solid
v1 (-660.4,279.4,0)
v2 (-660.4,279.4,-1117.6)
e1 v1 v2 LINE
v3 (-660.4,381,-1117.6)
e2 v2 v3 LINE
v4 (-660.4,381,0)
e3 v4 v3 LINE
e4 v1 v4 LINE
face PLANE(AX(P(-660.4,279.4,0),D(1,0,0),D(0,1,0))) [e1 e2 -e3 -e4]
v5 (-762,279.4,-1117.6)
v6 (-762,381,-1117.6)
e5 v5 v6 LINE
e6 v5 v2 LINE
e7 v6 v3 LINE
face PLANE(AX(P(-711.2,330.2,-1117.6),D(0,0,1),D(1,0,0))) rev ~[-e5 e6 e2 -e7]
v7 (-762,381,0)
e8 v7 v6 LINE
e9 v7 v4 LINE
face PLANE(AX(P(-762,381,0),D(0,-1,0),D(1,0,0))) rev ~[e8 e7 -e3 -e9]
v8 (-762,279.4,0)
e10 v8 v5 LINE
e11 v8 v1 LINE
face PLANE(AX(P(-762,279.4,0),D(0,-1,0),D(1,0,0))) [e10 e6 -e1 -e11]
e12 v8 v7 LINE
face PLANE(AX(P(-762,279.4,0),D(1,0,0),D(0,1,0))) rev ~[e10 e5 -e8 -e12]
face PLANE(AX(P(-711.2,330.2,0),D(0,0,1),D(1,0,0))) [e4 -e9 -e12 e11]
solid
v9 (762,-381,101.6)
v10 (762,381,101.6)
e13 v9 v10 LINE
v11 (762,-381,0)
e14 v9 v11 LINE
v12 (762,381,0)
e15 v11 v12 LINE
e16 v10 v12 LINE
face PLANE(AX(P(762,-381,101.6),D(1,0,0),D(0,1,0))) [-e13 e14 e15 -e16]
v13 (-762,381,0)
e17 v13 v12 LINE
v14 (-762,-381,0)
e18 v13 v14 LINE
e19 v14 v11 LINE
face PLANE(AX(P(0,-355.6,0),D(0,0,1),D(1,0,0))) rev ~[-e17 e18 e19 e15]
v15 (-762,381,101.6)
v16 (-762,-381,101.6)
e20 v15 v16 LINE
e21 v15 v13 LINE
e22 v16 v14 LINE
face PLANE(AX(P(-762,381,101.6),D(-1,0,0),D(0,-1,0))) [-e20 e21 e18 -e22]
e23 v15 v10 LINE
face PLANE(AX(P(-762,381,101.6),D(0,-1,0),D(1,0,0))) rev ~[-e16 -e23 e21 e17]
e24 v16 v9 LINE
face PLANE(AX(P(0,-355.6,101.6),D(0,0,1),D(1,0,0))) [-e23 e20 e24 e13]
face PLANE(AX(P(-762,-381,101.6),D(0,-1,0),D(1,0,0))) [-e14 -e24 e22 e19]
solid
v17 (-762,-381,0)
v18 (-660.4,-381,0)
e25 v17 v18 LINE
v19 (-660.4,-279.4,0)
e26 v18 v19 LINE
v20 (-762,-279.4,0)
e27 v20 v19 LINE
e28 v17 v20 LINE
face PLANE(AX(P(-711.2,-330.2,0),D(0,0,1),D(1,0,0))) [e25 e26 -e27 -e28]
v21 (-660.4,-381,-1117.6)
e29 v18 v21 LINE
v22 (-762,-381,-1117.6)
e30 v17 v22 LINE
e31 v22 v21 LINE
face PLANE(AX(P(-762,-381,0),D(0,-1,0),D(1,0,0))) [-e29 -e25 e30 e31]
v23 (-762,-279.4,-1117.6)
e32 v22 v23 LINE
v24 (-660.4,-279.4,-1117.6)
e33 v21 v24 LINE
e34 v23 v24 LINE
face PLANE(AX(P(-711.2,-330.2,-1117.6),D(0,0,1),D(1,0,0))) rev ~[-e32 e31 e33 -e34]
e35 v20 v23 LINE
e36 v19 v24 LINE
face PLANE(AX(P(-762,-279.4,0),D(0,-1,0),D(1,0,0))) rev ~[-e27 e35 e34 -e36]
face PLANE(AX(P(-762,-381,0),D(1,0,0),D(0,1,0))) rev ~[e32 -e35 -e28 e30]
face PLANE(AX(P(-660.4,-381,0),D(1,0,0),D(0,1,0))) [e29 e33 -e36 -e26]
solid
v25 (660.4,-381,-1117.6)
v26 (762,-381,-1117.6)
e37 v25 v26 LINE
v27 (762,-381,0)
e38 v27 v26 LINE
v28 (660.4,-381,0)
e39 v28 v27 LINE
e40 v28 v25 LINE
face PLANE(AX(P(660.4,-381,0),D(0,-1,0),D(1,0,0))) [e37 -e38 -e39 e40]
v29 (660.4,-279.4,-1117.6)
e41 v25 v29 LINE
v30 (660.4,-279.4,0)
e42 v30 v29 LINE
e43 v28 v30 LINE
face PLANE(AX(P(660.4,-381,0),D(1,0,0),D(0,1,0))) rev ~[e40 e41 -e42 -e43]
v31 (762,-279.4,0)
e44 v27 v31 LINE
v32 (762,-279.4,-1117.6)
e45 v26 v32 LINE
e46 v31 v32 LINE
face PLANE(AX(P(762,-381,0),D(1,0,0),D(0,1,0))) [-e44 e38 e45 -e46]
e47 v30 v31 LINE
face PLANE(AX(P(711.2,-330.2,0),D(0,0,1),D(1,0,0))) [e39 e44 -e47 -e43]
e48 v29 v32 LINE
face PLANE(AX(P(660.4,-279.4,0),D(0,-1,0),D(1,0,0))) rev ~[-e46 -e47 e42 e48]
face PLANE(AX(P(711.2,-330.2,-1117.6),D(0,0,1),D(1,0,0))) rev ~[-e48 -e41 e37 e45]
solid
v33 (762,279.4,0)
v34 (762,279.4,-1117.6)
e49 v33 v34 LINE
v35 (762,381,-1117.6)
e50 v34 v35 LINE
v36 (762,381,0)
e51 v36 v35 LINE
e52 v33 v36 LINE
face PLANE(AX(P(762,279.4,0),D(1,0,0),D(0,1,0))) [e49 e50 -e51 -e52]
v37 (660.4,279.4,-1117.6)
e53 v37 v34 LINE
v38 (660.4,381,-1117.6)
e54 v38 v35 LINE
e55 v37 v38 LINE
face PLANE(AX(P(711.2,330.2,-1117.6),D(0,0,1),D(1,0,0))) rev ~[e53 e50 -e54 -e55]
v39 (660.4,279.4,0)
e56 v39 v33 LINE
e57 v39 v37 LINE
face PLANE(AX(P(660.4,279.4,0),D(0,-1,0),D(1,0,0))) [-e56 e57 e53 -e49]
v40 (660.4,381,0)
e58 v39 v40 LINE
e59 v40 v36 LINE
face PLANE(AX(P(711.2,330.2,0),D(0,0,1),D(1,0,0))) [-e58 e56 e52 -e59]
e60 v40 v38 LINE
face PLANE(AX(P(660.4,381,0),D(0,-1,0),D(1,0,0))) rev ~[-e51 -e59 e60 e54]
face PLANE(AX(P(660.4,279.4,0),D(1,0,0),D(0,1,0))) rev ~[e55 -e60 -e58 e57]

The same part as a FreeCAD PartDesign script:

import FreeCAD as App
import Part
import Sketcher
from FreeCAD import Vector
Q = App.Units.Quantity

doc = App.newDocument("Part")
body = doc.addObject("PartDesign::Body", "Body")

# Sketch on XY plane
sketch1 = body.newObject("Sketcher::SketchObject", "Sketch")
sketch1.AttachmentSupport = (doc.getObject("XY_Plane"), [""])
sketch1.MapMode = "FlatFace"
sketch1.addGeometry(Part.LineSegment(Vector(-762, 381, 0), Vector(-762, 279.4, 0)), False)
sketch1.addGeometry(Part.LineSegment(Vector(-762, 279.4, 0), Vector(-660.4, 279.4, 0)), False)
sketch1.addGeometry(Part.LineSegment(Vector(-660.4, 279.4, 0), Vector(-660.4, 381, 0)), False)
sketch1.addGeometry(Part.LineSegment(Vector(-660.4, 381, 0), Vector(-762, 381, 0)), False)
sketch1.addConstraint(Sketcher.Constraint("Coincident", 0, 2, 1, 1))
sketch1.addConstraint(Sketcher.Constraint("Coincident", 1, 2, 2, 1))
sketch1.addConstraint(Sketcher.Constraint("Coincident", 2, 2, 3, 1))
sketch1.addConstraint(Sketcher.Constraint("Coincident", 3, 2, 0, 1))
sketch1.addConstraint(Sketcher.Constraint("Vertical", 0))
sketch1.addConstraint(Sketcher.Constraint("Horizontal", 1))
sketch1.addConstraint(Sketcher.Constraint("Vertical", 2))
sketch1.addConstraint(Sketcher.Constraint("Horizontal", 3))
sketch1.addConstraint(Sketcher.Constraint("Equal", 3, 0))
sketch1.addConstraint(Sketcher.Constraint("DistanceX", 1, 1, 1, 2, Q("4 in")))
sketch1.addConstraint(Sketcher.Constraint("DistanceX", 0, 2, -1, 1, Q("30 in")))
sketch1.addConstraint(Sketcher.Constraint("DistanceY", -1, 1, 0, 2, Q("11 in")))
pad1 = body.newObject("PartDesign::Pad", "Pad")
pad1.Profile = sketch1
pad1.Length = Q("44 in")
pad1.Reversed = True
body2 = doc.addObject("PartDesign::Body", "Body001")

# Sketch on XY plane
sketch2 = body2.newObject("Sketcher::SketchObject", "Sketch001")
sketch2.AttachmentSupport = (doc.getObject("XY_Plane001"), [""])
sketch2.MapMode = "FlatFace"
sketch2.addGeometry(Part.LineSegment(Vector(660.4, 381, 0), Vector(660.4, 279.4, 0)), False)
sketch2.addGeometry(Part.LineSegment(Vector(660.4, 279.4, 0), Vector(762, 279.4, 0)), False)
sketch2.addGeometry(Part.LineSegment(Vector(762, 279.4, 0), Vector(762, 381, 0)), False)
sketch2.addGeometry(Part.LineSegment(Vector(762, 381, 0), Vector(660.4, 381, 0)), False)
sketch2.addConstraint(Sketcher.Constraint("Coincident", 0, 2, 1, 1))
sketch2.addConstraint(Sketcher.Constraint("Coincident", 1, 2, 2, 1))
sketch2.addConstraint(Sketcher.Constraint("Coincident", 2, 2, 3, 1))
sketch2.addConstraint(Sketcher.Constraint("Coincident", 3, 2, 0, 1))
sketch2.addConstraint(Sketcher.Constraint("Vertical", 0))
sketch2.addConstraint(Sketcher.Constraint("Horizontal", 1))
sketch2.addConstraint(Sketcher.Constraint("Vertical", 2))
sketch2.addConstraint(Sketcher.Constraint("Horizontal", 3))
sketch2.addConstraint(Sketcher.Constraint("Equal", 3, 0))
sketch2.addConstraint(Sketcher.Constraint("DistanceX", 1, 1, 1, 2, Q("4 in")))
sketch2.addConstraint(Sketcher.Constraint("DistanceX", -1, 1, 0, 2, Q("26 in")))
sketch2.addConstraint(Sketcher.Constraint("DistanceY", -1, 1, 0, 2, Q("11 in")))
pad2 = body2.newObject("PartDesign::Pad", "Pad001")
pad2.Profile = sketch2
pad2.Length = Q("44 in")
pad2.Reversed = True
body3 = doc.addObject("PartDesign::Body", "Body002")

# Sketch on XY plane
sketch3 = body3.newObject("Sketcher::SketchObject", "Sketch002")
sketch3.AttachmentSupport = (doc.getObject("XY_Plane002"), [""])
sketch3.MapMode = "FlatFace"
sketch3.addGeometry(Part.LineSegment(Vector(660.4, -279.4, 0), Vector(660.4, -381, 0)), False)
sketch3.addGeometry(Part.LineSegment(Vector(660.4, -381, 0), Vector(762, -381, 0)), False)
sketch3.addGeometry(Part.LineSegment(Vector(762, -381, 0), Vector(762, -279.4, 0)), False)
sketch3.addGeometry(Part.LineSegment(Vector(762, -279.4, 0), Vector(660.4, -279.4, 0)), False)
sketch3.addConstraint(Sketcher.Constraint("Coincident", 0, 2, 1, 1))
sketch3.addConstraint(Sketcher.Constraint("Coincident", 1, 2, 2, 1))
sketch3.addConstraint(Sketcher.Constraint("Coincident", 2, 2, 3, 1))
sketch3.addConstraint(Sketcher.Constraint("Coincident", 3, 2, 0, 1))
sketch3.addConstraint(Sketcher.Constraint("Vertical", 0))
sketch3.addConstraint(Sketcher.Constraint("Horizontal", 1))
sketch3.addConstraint(Sketcher.Constraint("Vertical", 2))
sketch3.addConstraint(Sketcher.Constraint("Horizontal", 3))
sketch3.addConstraint(Sketcher.Constraint("Equal", 3, 0))
sketch3.addConstraint(Sketcher.Constraint("DistanceX", 1, 1, 1, 2, Q("4 in")))
sketch3.addConstraint(Sketcher.Constraint("DistanceX", -1, 1, 0, 2, Q("26 in")))
sketch3.addConstraint(Sketcher.Constraint("DistanceY", 0, 2, -1, 1, Q("15 in")))
pad3 = body3.newObject("PartDesign::Pad", "Pad002")
pad3.Profile = sketch3
pad3.Length = Q("44 in")
pad3.Reversed = True
body4 = doc.addObject("PartDesign::Body", "Body003")

# Sketch on XY plane
sketch4 = body4.newObject("Sketcher::SketchObject", "Sketch003")
sketch4.AttachmentSupport = (doc.getObject("XY_Plane003"), [""])
sketch4.MapMode = "FlatFace"
sketch4.addGeometry(Part.LineSegment(Vector(-762, -279.4, 0), Vector(-762, -381, 0)), False)
sketch4.addGeometry(Part.LineSegment(Vector(-762, -381, 0), Vector(-660.4, -381, 0)), False)
sketch4.addGeometry(Part.LineSegment(Vector(-660.4, -381, 0), Vector(-660.4, -279.4, 0)), False)
sketch4.addGeometry(Part.LineSegment(Vector(-660.4, -279.4, 0), Vector(-762, -279.4, 0)), False)
sketch4.addConstraint(Sketcher.Constraint("Coincident", 0, 2, 1, 1))
sketch4.addConstraint(Sketcher.Constraint("Coincident", 1, 2, 2, 1))
sketch4.addConstraint(Sketcher.Constraint("Coincident", 2, 2, 3, 1))
sketch4.addConstraint(Sketcher.Constraint("Coincident", 3, 2, 0, 1))
sketch4.addConstraint(Sketcher.Constraint("Vertical", 0))
sketch4.addConstraint(Sketcher.Constraint("Horizontal", 1))
sketch4.addConstraint(Sketcher.Constraint("Vertical", 2))
sketch4.addConstraint(Sketcher.Constraint("Horizontal", 3))
sketch4.addConstraint(Sketcher.Constraint("Equal", 3, 0))
sketch4.addConstraint(Sketcher.Constraint("DistanceX", 1, 1, 1, 2, Q("4 in")))
sketch4.addConstraint(Sketcher.Constraint("DistanceX", 0, 2, -1, 1, Q("30 in")))
sketch4.addConstraint(Sketcher.Constraint("DistanceY", 0, 2, -1, 1, Q("15 in")))
pad4 = body4.newObject("PartDesign::Pad", "Pad003")
pad4.Profile = sketch4
pad4.Length = Q("44 in")
pad4.Reversed = True
body5 = doc.addObject("PartDesign::Body", "Body004")

# Sketch on XY plane
sketch5 = body5.newObject("Sketcher::SketchObject", "Sketch004")
sketch5.AttachmentSupport = (doc.getObject("XY_Plane004"), [""])
sketch5.MapMode = "FlatFace"
sketch5.AttachmentOffset = App.Placement(Vector(0, 0, 4 * 25.4), App.Rotation())
sketch5.addGeometry(Part.LineSegment(Vector(-762, -381, 0), Vector(762, -381, 0)), False)
sketch5.addGeometry(Part.LineSegment(Vector(762, -381, 0), Vector(762, 381, 0)), False)
sketch5.addGeometry(Part.LineSegment(Vector(762, 381, 0), Vector(-762, 381, 0)), False)
sketch5.addGeometry(Part.LineSegment(Vector(-762, 381, 0), Vector(-762, -381, 0)), False)
sketch5.addConstraint(Sketcher.Constraint("Coincident", 0, 2, 1, 1))
sketch5.addConstraint(Sketcher.Constraint("Coincident", 1, 2, 2, 1))
sketch5.addConstraint(Sketcher.Constraint("Coincident", 2, 2, 3, 1))
sketch5.addConstraint(Sketcher.Constraint("Coincident", 3, 2, 0, 1))
sketch5.addConstraint(Sketcher.Constraint("Horizontal", 0))
sketch5.addConstraint(Sketcher.Constraint("Vertical", 1))
sketch5.addConstraint(Sketcher.Constraint("Horizontal", 2))
sketch5.addConstraint(Sketcher.Constraint("Vertical", 3))
sketch5.addConstraint(Sketcher.Constraint("Symmetric", 0, 2, 2, 2, -1, 1))
sketch5.addConstraint(Sketcher.Constraint("DistanceX", 0, 1, 0, 2, Q("60 in")))
sketch5.addConstraint(Sketcher.Constraint("DistanceY", 1, 1, 1, 2, Q("30 in")))
pad5 = body5.newObject("PartDesign::Pad", "Pad004")
pad5.Profile = sketch5
pad5.Length = Q("4 in")
pad5.Reversed = True

doc.recompute()
